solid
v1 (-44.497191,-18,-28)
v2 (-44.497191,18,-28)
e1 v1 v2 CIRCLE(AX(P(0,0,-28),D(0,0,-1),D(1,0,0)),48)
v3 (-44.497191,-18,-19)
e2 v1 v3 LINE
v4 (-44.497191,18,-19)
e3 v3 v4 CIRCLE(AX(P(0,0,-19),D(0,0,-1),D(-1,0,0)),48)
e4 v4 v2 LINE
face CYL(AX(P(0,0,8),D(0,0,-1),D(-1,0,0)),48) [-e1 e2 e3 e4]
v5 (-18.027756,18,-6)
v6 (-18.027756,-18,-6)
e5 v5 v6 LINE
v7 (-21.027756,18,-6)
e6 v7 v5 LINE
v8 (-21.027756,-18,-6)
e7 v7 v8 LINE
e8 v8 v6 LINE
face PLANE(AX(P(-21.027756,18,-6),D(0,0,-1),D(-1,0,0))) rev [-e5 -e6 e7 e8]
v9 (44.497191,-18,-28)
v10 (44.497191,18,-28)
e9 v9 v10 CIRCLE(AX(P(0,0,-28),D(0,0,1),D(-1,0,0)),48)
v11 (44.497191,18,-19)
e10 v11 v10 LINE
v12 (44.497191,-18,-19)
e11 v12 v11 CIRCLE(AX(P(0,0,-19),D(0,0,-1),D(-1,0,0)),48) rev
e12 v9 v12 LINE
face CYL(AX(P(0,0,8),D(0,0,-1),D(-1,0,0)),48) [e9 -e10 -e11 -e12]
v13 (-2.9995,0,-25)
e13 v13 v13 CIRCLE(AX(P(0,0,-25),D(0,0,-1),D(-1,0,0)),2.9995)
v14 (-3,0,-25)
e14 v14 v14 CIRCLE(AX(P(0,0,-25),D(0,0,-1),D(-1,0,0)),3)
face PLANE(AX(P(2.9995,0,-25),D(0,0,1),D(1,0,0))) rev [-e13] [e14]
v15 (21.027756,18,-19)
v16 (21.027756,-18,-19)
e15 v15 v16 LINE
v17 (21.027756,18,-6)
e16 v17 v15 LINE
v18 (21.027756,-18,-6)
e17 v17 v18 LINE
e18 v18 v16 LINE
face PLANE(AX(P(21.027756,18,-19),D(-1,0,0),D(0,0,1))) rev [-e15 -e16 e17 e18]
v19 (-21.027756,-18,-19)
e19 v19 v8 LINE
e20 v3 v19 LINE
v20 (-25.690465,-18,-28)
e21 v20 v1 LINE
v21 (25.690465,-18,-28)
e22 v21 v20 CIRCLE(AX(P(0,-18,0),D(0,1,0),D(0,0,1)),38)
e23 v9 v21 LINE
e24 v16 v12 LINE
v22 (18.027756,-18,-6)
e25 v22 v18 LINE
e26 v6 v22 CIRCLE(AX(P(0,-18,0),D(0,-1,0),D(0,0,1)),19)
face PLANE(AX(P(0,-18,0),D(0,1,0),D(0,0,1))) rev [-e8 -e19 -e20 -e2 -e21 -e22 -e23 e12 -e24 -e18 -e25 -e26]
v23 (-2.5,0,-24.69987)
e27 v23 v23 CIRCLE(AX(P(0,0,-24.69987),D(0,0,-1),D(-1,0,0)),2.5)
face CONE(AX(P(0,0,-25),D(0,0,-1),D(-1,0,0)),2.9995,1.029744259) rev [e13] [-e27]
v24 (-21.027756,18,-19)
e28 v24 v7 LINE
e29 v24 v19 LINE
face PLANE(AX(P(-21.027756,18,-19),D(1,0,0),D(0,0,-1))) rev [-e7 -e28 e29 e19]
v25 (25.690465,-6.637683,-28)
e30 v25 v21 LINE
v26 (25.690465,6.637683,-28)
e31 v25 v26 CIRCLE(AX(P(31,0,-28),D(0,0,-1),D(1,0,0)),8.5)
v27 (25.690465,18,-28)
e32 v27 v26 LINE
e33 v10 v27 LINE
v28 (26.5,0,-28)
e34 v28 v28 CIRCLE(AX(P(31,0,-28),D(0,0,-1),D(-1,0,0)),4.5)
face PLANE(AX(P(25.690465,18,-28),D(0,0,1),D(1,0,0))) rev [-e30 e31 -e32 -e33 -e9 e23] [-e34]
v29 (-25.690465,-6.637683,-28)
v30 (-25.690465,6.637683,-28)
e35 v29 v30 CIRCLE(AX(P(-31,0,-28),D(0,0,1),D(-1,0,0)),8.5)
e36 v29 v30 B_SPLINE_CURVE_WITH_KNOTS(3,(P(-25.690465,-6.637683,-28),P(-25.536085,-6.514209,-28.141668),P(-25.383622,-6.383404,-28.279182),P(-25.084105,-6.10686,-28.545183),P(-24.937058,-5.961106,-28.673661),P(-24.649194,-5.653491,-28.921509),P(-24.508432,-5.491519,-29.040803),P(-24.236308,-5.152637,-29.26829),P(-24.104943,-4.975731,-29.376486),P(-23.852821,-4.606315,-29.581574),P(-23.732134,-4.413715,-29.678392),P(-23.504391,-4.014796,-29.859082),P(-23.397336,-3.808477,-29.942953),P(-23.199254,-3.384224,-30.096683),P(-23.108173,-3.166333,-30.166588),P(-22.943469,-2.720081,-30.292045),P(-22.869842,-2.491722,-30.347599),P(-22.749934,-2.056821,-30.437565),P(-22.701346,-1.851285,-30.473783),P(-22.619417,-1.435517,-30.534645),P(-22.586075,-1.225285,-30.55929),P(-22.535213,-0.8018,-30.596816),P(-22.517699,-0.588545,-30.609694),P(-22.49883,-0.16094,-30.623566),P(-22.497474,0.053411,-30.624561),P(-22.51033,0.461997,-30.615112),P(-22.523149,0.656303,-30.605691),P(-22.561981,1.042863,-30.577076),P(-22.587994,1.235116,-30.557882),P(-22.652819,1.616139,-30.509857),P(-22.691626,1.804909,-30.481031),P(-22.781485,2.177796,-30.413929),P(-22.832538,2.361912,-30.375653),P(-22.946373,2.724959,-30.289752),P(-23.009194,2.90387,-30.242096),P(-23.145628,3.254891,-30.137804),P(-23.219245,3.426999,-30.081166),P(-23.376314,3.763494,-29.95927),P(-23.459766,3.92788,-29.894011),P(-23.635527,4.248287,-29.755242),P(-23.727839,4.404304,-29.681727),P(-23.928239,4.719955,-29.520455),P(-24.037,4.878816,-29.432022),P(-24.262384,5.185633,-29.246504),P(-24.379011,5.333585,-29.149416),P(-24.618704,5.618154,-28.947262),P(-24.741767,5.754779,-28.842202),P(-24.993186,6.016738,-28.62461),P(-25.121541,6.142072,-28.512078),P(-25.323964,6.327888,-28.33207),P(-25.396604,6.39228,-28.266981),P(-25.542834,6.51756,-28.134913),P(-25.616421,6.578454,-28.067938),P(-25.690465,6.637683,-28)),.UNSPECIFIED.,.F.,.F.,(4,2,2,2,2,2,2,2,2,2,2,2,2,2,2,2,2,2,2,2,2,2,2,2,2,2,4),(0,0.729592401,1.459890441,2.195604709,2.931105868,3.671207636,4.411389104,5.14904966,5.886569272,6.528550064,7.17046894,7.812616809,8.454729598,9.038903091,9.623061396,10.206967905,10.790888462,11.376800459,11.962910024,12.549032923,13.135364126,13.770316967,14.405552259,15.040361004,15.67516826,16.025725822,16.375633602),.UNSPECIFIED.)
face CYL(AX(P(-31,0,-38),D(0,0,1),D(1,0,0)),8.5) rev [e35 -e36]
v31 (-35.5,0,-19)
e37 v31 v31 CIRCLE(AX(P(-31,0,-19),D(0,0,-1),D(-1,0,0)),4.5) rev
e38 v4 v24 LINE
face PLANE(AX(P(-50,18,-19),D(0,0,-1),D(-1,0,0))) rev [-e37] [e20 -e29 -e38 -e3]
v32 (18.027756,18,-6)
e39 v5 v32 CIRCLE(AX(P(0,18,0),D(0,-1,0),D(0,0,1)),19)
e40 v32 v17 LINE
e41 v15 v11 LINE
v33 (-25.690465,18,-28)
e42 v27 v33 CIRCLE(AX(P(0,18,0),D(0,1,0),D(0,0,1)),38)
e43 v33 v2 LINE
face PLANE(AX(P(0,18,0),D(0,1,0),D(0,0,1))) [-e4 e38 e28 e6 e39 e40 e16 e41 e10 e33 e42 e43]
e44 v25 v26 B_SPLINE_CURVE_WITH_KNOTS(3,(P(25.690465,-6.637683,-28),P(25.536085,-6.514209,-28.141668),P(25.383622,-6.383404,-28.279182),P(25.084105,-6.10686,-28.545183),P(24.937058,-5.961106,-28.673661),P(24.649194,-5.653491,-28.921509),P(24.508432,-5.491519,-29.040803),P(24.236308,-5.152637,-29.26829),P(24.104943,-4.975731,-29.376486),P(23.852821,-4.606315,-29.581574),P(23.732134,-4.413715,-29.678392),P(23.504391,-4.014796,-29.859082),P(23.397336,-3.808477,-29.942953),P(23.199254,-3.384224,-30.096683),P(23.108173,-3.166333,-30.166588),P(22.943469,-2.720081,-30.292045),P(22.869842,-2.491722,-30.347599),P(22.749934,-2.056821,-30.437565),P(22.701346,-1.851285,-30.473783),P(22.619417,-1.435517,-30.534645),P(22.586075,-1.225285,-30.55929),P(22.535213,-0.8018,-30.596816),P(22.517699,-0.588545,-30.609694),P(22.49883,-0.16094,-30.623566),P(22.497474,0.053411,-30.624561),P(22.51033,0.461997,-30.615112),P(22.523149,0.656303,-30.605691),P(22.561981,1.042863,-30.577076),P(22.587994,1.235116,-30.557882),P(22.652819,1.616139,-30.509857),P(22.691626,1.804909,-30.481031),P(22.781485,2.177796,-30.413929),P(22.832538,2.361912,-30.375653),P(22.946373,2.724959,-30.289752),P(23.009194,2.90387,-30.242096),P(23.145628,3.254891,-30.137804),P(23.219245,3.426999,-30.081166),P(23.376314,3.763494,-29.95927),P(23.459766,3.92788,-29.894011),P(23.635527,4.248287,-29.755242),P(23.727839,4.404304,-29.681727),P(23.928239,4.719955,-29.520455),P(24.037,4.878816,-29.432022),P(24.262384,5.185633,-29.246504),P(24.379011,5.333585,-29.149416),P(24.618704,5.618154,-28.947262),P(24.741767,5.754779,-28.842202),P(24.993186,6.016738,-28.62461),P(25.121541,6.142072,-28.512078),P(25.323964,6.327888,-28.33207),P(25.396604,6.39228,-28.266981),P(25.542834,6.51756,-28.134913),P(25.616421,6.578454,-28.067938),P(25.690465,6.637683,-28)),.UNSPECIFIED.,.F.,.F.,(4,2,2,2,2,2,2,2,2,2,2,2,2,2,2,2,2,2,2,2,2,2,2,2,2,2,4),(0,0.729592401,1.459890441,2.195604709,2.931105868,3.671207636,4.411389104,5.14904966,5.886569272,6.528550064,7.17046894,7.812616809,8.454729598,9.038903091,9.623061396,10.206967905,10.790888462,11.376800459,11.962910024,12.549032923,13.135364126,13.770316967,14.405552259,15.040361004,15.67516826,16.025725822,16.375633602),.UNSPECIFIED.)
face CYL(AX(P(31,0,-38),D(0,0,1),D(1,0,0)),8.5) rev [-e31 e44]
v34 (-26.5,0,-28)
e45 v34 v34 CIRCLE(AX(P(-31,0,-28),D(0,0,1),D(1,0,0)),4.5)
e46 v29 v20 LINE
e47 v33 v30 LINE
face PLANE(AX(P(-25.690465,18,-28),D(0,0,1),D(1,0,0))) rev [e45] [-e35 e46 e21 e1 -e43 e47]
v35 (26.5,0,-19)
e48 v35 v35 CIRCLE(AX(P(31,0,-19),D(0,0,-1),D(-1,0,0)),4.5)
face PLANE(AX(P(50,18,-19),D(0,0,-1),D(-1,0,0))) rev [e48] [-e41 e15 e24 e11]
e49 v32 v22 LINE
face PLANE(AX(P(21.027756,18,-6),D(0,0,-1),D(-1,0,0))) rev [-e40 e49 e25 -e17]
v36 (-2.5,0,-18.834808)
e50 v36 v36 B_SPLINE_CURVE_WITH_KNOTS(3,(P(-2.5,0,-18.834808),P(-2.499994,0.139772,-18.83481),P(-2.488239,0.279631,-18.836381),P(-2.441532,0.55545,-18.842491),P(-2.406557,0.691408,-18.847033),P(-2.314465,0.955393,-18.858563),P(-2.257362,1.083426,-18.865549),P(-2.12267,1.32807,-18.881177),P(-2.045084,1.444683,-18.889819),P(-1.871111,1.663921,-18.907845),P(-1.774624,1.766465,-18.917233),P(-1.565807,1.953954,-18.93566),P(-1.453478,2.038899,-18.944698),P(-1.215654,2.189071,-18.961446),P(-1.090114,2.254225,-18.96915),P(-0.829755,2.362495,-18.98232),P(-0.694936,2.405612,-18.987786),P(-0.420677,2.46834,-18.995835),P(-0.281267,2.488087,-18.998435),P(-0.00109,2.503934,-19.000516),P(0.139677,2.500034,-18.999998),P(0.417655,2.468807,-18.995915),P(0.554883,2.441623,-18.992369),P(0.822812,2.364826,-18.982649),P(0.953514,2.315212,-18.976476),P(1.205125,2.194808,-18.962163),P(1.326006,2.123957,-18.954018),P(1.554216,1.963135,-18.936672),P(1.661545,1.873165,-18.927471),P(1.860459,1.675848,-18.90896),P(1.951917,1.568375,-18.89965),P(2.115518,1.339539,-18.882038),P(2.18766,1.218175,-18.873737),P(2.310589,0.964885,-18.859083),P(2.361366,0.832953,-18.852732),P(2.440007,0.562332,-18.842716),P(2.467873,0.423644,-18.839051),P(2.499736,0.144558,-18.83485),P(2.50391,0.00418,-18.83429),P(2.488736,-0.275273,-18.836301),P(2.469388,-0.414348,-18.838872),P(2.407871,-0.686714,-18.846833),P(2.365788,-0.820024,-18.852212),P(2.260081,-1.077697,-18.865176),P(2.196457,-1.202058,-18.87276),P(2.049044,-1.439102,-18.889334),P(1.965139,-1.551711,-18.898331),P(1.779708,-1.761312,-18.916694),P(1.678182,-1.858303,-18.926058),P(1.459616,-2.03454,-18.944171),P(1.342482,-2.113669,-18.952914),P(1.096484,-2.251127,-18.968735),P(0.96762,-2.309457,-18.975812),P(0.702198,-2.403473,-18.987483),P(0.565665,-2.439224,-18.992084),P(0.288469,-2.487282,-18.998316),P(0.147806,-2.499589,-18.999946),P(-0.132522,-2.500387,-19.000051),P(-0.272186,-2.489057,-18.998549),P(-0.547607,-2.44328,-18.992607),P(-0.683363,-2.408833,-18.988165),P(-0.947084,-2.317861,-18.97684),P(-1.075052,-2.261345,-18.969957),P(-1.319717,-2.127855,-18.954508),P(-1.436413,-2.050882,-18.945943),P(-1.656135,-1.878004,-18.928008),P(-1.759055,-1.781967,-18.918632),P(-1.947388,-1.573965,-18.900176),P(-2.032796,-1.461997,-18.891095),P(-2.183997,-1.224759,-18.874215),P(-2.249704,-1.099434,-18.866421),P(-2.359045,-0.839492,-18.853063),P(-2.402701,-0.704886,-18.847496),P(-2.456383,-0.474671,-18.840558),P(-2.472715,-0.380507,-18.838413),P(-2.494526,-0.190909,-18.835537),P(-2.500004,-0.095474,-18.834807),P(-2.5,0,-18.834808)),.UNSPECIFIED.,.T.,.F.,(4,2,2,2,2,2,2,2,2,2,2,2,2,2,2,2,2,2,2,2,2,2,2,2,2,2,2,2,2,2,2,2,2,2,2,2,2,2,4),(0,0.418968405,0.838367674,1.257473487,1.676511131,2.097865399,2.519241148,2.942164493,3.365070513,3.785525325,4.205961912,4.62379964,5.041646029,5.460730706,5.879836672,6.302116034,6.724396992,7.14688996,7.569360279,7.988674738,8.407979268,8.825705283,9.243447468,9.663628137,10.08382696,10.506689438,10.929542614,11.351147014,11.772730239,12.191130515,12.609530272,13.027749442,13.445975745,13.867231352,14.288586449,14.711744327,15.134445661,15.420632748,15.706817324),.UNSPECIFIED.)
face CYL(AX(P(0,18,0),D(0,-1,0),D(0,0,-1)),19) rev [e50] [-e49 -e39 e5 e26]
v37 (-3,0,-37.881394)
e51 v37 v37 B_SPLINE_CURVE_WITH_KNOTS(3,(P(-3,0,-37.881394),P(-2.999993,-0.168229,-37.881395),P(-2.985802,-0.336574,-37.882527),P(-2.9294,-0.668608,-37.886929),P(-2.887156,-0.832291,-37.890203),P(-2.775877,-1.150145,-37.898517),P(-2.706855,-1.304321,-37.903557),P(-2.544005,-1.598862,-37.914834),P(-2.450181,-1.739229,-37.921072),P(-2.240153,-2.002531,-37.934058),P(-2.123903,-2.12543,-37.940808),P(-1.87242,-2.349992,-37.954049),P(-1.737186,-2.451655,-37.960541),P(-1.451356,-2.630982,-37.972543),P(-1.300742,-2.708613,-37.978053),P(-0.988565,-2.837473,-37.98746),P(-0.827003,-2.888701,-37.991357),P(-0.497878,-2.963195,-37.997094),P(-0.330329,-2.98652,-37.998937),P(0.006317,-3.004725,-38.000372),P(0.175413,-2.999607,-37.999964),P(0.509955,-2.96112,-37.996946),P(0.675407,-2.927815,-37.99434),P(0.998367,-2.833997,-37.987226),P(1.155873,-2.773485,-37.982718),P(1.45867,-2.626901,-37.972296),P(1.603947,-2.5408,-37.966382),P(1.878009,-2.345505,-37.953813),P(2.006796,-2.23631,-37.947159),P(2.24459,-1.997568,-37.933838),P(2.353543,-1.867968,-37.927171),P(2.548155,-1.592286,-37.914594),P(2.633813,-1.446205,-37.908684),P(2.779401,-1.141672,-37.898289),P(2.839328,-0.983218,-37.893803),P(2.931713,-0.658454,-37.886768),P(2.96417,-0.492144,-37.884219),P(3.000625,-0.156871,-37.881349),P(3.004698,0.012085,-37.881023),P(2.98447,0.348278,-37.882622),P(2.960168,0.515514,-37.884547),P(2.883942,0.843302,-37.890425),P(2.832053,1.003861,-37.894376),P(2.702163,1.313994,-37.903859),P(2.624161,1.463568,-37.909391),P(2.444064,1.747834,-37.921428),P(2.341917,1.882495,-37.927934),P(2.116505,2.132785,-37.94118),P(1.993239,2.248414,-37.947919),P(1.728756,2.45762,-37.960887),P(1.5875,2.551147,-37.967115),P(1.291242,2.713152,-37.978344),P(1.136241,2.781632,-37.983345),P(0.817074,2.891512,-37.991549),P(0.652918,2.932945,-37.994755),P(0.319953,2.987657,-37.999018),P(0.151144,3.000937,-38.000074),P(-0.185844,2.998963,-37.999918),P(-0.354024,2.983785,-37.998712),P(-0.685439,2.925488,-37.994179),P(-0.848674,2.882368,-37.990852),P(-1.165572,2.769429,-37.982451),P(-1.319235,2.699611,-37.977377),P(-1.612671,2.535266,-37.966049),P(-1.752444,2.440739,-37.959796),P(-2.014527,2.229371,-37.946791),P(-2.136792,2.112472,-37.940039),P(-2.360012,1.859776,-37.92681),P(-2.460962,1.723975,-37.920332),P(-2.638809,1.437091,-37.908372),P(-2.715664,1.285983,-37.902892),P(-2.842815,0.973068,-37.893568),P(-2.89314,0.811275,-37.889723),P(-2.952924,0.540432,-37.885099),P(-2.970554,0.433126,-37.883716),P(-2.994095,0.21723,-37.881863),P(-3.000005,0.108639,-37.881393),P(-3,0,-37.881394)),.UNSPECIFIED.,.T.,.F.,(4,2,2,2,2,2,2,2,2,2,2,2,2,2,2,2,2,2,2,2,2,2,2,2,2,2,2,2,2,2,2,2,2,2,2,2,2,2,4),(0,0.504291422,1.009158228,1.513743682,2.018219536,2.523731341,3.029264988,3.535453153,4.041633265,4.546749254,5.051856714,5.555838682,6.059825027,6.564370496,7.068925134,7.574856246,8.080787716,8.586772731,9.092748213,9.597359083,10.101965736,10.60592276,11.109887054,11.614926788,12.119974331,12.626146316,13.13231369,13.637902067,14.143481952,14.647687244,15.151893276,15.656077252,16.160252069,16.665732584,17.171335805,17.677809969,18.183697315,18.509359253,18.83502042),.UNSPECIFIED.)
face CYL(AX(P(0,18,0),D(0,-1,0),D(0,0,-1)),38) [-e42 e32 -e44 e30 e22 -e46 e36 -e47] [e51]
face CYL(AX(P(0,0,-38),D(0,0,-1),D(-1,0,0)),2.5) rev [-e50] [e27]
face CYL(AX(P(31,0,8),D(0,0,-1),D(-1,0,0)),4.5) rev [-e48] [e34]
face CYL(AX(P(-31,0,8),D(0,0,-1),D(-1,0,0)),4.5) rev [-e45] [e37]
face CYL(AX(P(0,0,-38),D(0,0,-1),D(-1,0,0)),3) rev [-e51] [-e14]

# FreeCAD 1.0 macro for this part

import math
import FreeCAD as App
import Part
import Sketcher
Q = App.Units.Quantity


def add_polygon(sketch, points):
    """Adds a closed chain of lines whose ends are joined by coincident constraints."""
    first, n = sketch.GeometryCount, len(points)
    for a, b in zip(points, points[1:] + points[:1]):
        sketch.addGeometry(Part.LineSegment(App.Vector(*a, 0), App.Vector(*b, 0)), False)
    for i in range(n):
        sketch.addConstraint(Sketcher.Constraint("Coincident", first + i, 2, first + (i + 1) % n, 1))

doc = App.newDocument("Part")
body = doc.addObject("PartDesign::Body", "Body")

sketch1 = doc.addObject("Sketcher::SketchObject", "Sketch")
body.addObject(sketch1)
sketch1.AttachmentSupport = (doc.XZ_Plane, [""])
sketch1.MapMode = "FlatFace"
sketch1.addGeometry([
    Part.LineSegment(App.Vector(-25.7, -28, 0), App.Vector(-50, -28, 0)),
    Part.LineSegment(App.Vector(-50, -28, 0), App.Vector(-50, -19, 0)),
    Part.LineSegment(App.Vector(-50, -19, 0), App.Vector(-21, -19, 0)),
    Part.LineSegment(App.Vector(-21, -19, 0), App.Vector(-21, -6, 0)),
    Part.LineSegment(App.Vector(-21, -6, 0), App.Vector(-18, -6, 0)),
    Part.ArcOfCircle(Part.Circle(App.Vector(0, 0, 0), App.Vector(0, 0, 1), 19), math.radians(-162), math.radians(-18)),
    Part.LineSegment(App.Vector(18, -6, 0), App.Vector(21, -6, 0)),
    Part.LineSegment(App.Vector(21, -6, 0), App.Vector(21, -19, 0)),
    Part.LineSegment(App.Vector(21, -19, 0), App.Vector(50, -19, 0)),
    Part.LineSegment(App.Vector(50, -19, 0), App.Vector(50, -28, 0)),
    Part.LineSegment(App.Vector(50, -28, 0), App.Vector(25.7, -28, 0)),
    Part.ArcOfCircle(Part.Circle(App.Vector(0, 0, 0), App.Vector(0, 0, 1), 38), math.radians(-133), math.radians(-47)),
], False)
sketch1.addConstraint([
    Sketcher.Constraint("Coincident", 0, 2, 1, 1),
    Sketcher.Constraint("Coincident", 1, 2, 2, 1),
    Sketcher.Constraint("Coincident", 2, 2, 3, 1),
    Sketcher.Constraint("Coincident", 3, 2, 4, 1),
    Sketcher.Constraint("Coincident", 4, 2, 5, 1),
    Sketcher.Constraint("Coincident", 5, 2, 6, 1),
    Sketcher.Constraint("Coincident", 6, 2, 7, 1),
    Sketcher.Constraint("Coincident", 7, 2, 8, 1),
    Sketcher.Constraint("Coincident", 8, 2, 9, 1),
    Sketcher.Constraint("Coincident", 9, 2, 10, 1),
    Sketcher.Constraint("Coincident", 10, 2, 11, 2),
    Sketcher.Constraint("Coincident", 11, 1, 0, 1),
    Sketcher.Constraint("Horizontal", 0),
    Sketcher.Constraint("Vertical", 1),
    Sketcher.Constraint("Horizontal", 2),
    Sketcher.Constraint("Vertical", 3),
    Sketcher.Constraint("Horizontal", 4),
    Sketcher.Constraint("Horizontal", 6),
    Sketcher.Constraint("Vertical", 7),
    Sketcher.Constraint("Horizontal", 8),
    Sketcher.Constraint("Vertical", 9),
    Sketcher.Constraint("Horizontal", 10),
    Sketcher.Constraint("Coincident", 5, 3, -1, 1),
    Sketcher.Constraint("Coincident", 11, 3, -1, 1),
    Sketcher.Constraint("Symmetric", 3, 2, 6, 2, -2),
    Sketcher.Constraint("Symmetric", 1, 2, 8, 2, -2),
    Sketcher.Constraint("Horizontal", 0, 2, 9, 2),
    Sketcher.Constraint("Radius", 5, Q("19 mm")),
    Sketcher.Constraint("Radius", 11, Q("38 mm")),
    Sketcher.Constraint("DistanceX", 4, 1, 4, 2, Q("3 mm")),
    Sketcher.Constraint("DistanceY", 1, 1, 1, 2, Q("9 mm")),
    Sketcher.Constraint("DistanceY", 3, 1, 3, 2, Q("13 mm")),
    Sketcher.Constraint("DistanceX", 0, 2, -1, 1, Q("50 mm")),
    Sketcher.Constraint("DistanceY", 0, 2, -1, 1, Q("28 mm")),
])
pad1 = doc.addObject("PartDesign::Pad", "Pad")
body.addObject(pad1)
pad1.Profile = sketch1
pad1.Length = 36
pad1.Midplane = True

sketch2 = doc.addObject("Sketcher::SketchObject", "Sketch001")
body.addObject(sketch2)
sketch2.AttachmentSupport = (doc.XY_Plane, [""])
sketch2.MapMode = "FlatFace"
sketch2.AttachmentOffset = App.Placement(App.Vector(0, 0, -28), App.Rotation())
sketch2.addGeometry([
    Part.LineSegment(App.Vector(50, -18, 0), App.Vector(44, -18, 0)),
    Part.ArcOfCircle(Part.Circle(App.Vector(0, 0, 0), App.Vector(0, 0, 1), 48), math.radians(-22), math.radians(22)),
    Part.LineSegment(App.Vector(44, 18, 0), App.Vector(50, 18, 0)),
    Part.LineSegment(App.Vector(50, 18, 0), App.Vector(50, -18, 0)),
], False)
sketch2.addConstraint([
    Sketcher.Constraint("Coincident", 0, 2, 1, 1),
    Sketcher.Constraint("Coincident", 1, 2, 2, 1),
    Sketcher.Constraint("Coincident", 2, 2, 3, 1),
    Sketcher.Constraint("Coincident", 3, 2, 0, 1),
    Sketcher.Constraint("Horizontal", 0),
    Sketcher.Constraint("Horizontal", 2),
    Sketcher.Constraint("Vertical", 3),
    Sketcher.Constraint("Coincident", 1, 3, -1, 1),
    Sketcher.Constraint("Vertical", 0, 2, 1, 2),
    Sketcher.Constraint("Radius", 1, Q("48 mm")),
    Sketcher.Constraint("DistanceY", 3, 2, 3, 1, Q("36 mm")),
    Sketcher.Constraint("DistanceX", -1, 1, 2, 2, Q("50 mm")),
])
pocket1 = doc.addObject("PartDesign::Pocket", "Pocket")
body.addObject(pocket1)
pocket1.Profile = sketch2
pocket1.Length = 36
pocket1.Reversed = True
doc.recompute()

mirrored = doc.addObject("PartDesign::Mirrored", "Mirrored")
body.addObject(mirrored)
mirrored.Originals = [pocket1]
mirrored.MirrorPlane = (doc.YZ_Plane, [""])
body.Tip = mirrored

sketch3 = doc.addObject("Sketcher::SketchObject", "Sketch002")
body.addObject(sketch3)
sketch3.AttachmentSupport = (doc.XY_Plane, [""])
sketch3.MapMode = "FlatFace"
sketch3.AttachmentOffset = App.Placement(App.Vector(0, 0, -28), App.Rotation())
sketch3.addGeometry(Part.Circle(App.Vector(31, 0, 0), App.Vector(0, 0, 1), 4.5), False)
sketch3.addConstraint([
    Sketcher.Constraint("PointOnObject", 0, 3, -1),
    Sketcher.Constraint("Diameter", 0, Q("9 mm")),
    Sketcher.Constraint("DistanceX", -1, 1, 0, 3, Q("31 mm")),
])
pocket2 = doc.addObject("PartDesign::Pocket", "Pocket001")
body.addObject(pocket2)
pocket2.Profile = sketch3
pocket2.Length = 36
pocket2.Reversed = True

sketch4 = doc.addObject("Sketcher::SketchObject", "Sketch003")
body.addObject(sketch4)
sketch4.AttachmentSupport = (doc.XY_Plane, [""])
sketch4.MapMode = "FlatFace"
sketch4.AttachmentOffset = App.Placement(App.Vector(0, 0, -28), App.Rotation())
sketch4.addGeometry([
    Part.LineSegment(App.Vector(26, 7, 0), App.Vector(26, -7, 0)),
    Part.ArcOfCircle(Part.Circle(App.Vector(31, 0, 0), App.Vector(0, 0, 1), 8), math.radians(129), math.radians(231)),
], False)
sketch4.addConstraint([
    Sketcher.Constraint("Coincident", 0, 1, 1, 1),
    Sketcher.Constraint("Coincident", 1, 2, 0, 2),
    Sketcher.Constraint("Vertical", 0),
    Sketcher.Constraint("PointOnObject", 1, 3, -1),
    Sketcher.Constraint("Radius", 1, Q("8.5 mm")),
    Sketcher.Constraint("DistanceX", -1, 1, 1, 3, Q("31 mm")),
    Sketcher.Constraint("DistanceY", 0, 2, 0, 1, Q("13.275367 mm")),
])
pocket3 = doc.addObject("PartDesign::Pocket", "Pocket002")
body.addObject(pocket3)
pocket3.Profile = sketch4
pocket3.Type = "ThroughAll"
doc.recompute()

mirrored2 = doc.addObject("PartDesign::Mirrored", "Mirrored001")
body.addObject(mirrored2)
mirrored2.Originals = [pocket2, pocket3]
mirrored2.MirrorPlane = (doc.YZ_Plane, [""])
body.Tip = mirrored2

sketch5 = doc.addObject("Sketcher::SketchObject", "Sketch004")
body.addObject(sketch5)
sketch5.AttachmentSupport = (doc.YZ_Plane, [""])
sketch5.MapMode = "FlatFace"
add_polygon(sketch5, [(0, -6), (0, -38), (3, -38), (3, -25), (2.5, -24.7), (2.5, -6)])
sketch5.addConstraint([
    Sketcher.Constraint("Vertical", 0),
    Sketcher.Constraint("Horizontal", 1),
    Sketcher.Constraint("Vertical", 4),
    Sketcher.Constraint("Horizontal", 5),
    Sketcher.Constraint("PointOnObject", 0, 2, -2),
    Sketcher.Constraint("DistanceX", 1, 1, 1, 2, Q("3 mm")),
    Sketcher.Constraint("DistanceY", 0, 2, 0, 1, Q("32 mm")),
    Sketcher.Constraint("Angle", 3, Q("149 deg")),
    Sketcher.Constraint("Distance", 2, Q("13 mm")),
    Sketcher.Constraint("DistanceX", 5, 2, 5, 1, Q("2.5 mm")),
    Sketcher.Constraint("DistanceY", 0, 2, -1, 1, Q("38 mm")),
    Sketcher.Constraint("DistanceY", 4, 1, 4, 2, Q("18.69987 mm")),
])
groove = doc.addObject("PartDesign::Groove", "Groove")
body.addObject(groove)
groove.Profile = sketch5
groove.ReferenceAxis = (sketch5, ["V_Axis"])
groove.Angle = 360

doc.recompute()
